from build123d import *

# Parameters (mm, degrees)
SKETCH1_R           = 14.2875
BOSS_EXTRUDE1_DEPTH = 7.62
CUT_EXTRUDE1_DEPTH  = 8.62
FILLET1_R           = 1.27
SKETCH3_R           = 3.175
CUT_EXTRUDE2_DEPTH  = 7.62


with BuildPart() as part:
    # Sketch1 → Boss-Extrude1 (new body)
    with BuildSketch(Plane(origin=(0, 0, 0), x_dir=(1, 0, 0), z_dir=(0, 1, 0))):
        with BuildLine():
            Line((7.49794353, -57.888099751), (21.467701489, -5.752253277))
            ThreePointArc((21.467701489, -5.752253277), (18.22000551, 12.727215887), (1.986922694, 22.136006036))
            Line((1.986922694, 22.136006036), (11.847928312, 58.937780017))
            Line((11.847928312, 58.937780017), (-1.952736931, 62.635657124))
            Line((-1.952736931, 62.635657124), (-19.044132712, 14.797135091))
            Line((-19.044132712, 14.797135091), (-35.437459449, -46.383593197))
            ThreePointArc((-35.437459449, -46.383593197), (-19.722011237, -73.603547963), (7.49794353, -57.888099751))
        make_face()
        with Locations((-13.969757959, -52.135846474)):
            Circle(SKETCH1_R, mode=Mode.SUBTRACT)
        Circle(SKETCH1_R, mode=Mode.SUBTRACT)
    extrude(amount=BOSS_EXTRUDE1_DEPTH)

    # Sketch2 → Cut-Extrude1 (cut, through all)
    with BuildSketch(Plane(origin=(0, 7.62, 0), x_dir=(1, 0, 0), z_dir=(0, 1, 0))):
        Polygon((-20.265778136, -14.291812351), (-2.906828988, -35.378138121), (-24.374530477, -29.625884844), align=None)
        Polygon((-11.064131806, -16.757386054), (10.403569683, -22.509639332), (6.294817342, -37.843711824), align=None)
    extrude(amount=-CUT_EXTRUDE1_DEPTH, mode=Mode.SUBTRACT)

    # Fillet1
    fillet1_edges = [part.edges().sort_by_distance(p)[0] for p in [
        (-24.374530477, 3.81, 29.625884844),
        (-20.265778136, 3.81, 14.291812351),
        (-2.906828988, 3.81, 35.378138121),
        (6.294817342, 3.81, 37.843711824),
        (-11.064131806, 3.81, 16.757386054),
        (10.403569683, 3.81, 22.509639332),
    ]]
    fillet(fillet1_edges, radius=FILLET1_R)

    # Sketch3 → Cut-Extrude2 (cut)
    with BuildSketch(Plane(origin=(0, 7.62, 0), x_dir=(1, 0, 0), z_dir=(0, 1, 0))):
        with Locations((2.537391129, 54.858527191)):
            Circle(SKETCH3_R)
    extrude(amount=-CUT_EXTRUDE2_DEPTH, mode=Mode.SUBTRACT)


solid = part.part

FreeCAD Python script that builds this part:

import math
import FreeCAD as App
import Part
import Sketcher
from FreeCAD import Vector
Q = App.Units.Quantity


def edges_at(feature, points):
    """Names of the edges that pass closest to the given points."""
    edges = feature.Shape.Edges
    near = lambda p: min(range(len(edges)), key=lambda i: edges[i].distToShape(Part.Vertex(*p))[0])
    return sorted({f"Edge{near(p) + 1}" for p in points})


def add_polygon(sketch, points):
    """Adds a closed chain of lines whose ends are joined by coincident constraints."""
    first, n = sketch.GeometryCount, len(points)
    for a, b in zip(points, points[1:] + points[:1]):
        sketch.addGeometry(Part.LineSegment(App.Vector(*a, 0), App.Vector(*b, 0)), False)
    for i in range(n):
        sketch.addConstraint(Sketcher.Constraint("Coincident", first + i, 2, first + (i + 1) % n, 1))

doc = App.newDocument("Part")
params = doc.addObject("Spreadsheet::Sheet", "Params")
for row, (alias, value) in enumerate([
    ("sketch1_length", "2 in"),
    ("sketch1_diameter", "1.125 in"),
    ("sketch1_radius", "0.875 in"),
    ("sketch1_length2", "1.5 in"),
    ("sketch1_length3", "2.125 in"),
    ("pad1_length", "0.3 in"),
    ("sketch2_length", "0.625 in"),
    ("sketch2_length2", "0.875 in"),
    ("fillet_radius", "0.05 in"),
    ("sketch3_diameter", "0.25 in"),
    ("pocket2_length", "0.3 in"),
], start=1):
    params.set(f"A{row}", alias)
    params.set(f"B{row}", "=" + value)
    params.setAlias(f"B{row}", alias)

body = doc.addObject("PartDesign::Body", "Body")

# Sketch on XZ plane
sketch1 = body.newObject("Sketcher::SketchObject", "Sketch")
sketch1.AttachmentSupport = (doc.getObject("XZ_Plane"), [""])
sketch1.MapMode = "FlatFace"
sketch1.addGeometry(Part.LineSegment(Vector(7, 58, 0), Vector(21, 6, 0)), False)
sketch1.addGeometry(Part.ArcOfCircle(Part.Circle(Vector(0, 0, 0), Vector(0, 0, 1), 22), math.radians(-85), math.radians(15)), False)
sketch1.addGeometry(Part.LineSegment(Vector(2, -22, 0), Vector(12, -59, 0)), False)
sketch1.addGeometry(Part.LineSegment(Vector(12, -59, 0), Vector(-2, -63, 0)), False)
sketch1.addGeometry(Part.LineSegment(Vector(-2, -63, 0), Vector(-19, -15, 0)), False)
sketch1.addGeometry(Part.LineSegment(Vector(-19, -15, 0), Vector(-35, 46, 0)), False)
sketch1.addGeometry(Part.ArcOfCircle(Part.Circle(Vector(-14, 52, 0), Vector(0, 0, 1), 22), math.radians(15), math.radians(195)), False)
sketch1.addGeometry(Part.Circle(Vector(-14, 52, 0), Vector(0, 0, 1), 14), False)
sketch1.addGeometry(Part.Circle(Vector(0, 0, 0), Vector(0, 0, 1), 14), False)
sketch1.addConstraint(Sketcher.Constraint("Tangent", 0, 2, 1, 2))
sketch1.addConstraint(Sketcher.Constraint("Coincident", 1, 1, 2, 1))
sketch1.addConstraint(Sketcher.Constraint("Coincident", 2, 2, 3, 1))
sketch1.addConstraint(Sketcher.Constraint("Coincident", 3, 2, 4, 1))
sketch1.addConstraint(Sketcher.Constraint("Coincident", 4, 2, 5, 1))
sketch1.addConstraint(Sketcher.Constraint("Tangent", 5, 2, 6, 2))
sketch1.addConstraint(Sketcher.Constraint("Tangent", 6, 1, 0, 1))
sketch1.addConstraint(Sketcher.Constraint("Coincident", 1, 3, -1, 1))
sketch1.addConstraint(Sketcher.Constraint("Coincident", 8, 3, -1, 1))
sketch1.addConstraint(Sketcher.Constraint("Coincident", 7, 3, 6, 3))
sketch1.addConstraint(Sketcher.Constraint("Equal", 1, 6))
sketch1.addConstraint(Sketcher.Constraint("Equal", 7, 8))
sketch1.addConstraint(Sketcher.Constraint("Parallel", 0, 2))
sketch1.addConstraint(Sketcher.Constraint("Perpendicular", 2, 3))
sketch1.addConstraint(Sketcher.Constraint("Perpendicular", 3, 5))
sketch1.addConstraint(Sketcher.Constraint("Distance", 4, Q("2 in")))
sketch1.addConstraint(Sketcher.Constraint("Diameter", 7, Q("1.125 in")))
sketch1.addConstraint(Sketcher.Constraint("Angle", 0, Q("-75 deg")))
sketch1.addConstraint(Sketcher.Constraint("Radius", 1, Q("0.875 in")))
sketch1.addConstraint(Sketcher.Constraint("Distance", 2, Q("1.5 in")))
sketch1.addConstraint(Sketcher.Constraint("Distance", 0, Q("2.125 in")))
sketch1.addConstraint(Sketcher.Constraint("Distance", 3, Q("0.5625 in")))
sketch1.addConstraint(Sketcher.Constraint("Distance", 5, 63.338951))
sketch1.setExpression("Constraints[15]", "Params.sketch1_length")
sketch1.setExpression("Constraints[16]", "Params.sketch1_diameter")
sketch1.setExpression("Constraints[18]", "Params.sketch1_radius")
sketch1.setExpression("Constraints[19]", "Params.sketch1_length2")
sketch1.setExpression("Constraints[20]", "Params.sketch1_length3")
pad1 = body.newObject("PartDesign::Pad", "Pad")
pad1.Profile = sketch1
pad1.setExpression("Length", "Params.pad1_length")
pad1.Reversed = True

# Sketch on XZ plane
sketch2 = body.newObject("Sketcher::SketchObject", "Sketch001")
sketch2.AttachmentSupport = (doc.getObject("XZ_Plane"), [""])
sketch2.MapMode = "FlatFace"
sketch2.AttachmentOffset = App.Placement(Vector(0, 0, -0.3 * 25.4), App.Rotation())
add_polygon(sketch2, [(-3, 35), (-20, 14), (-24, 30)])  # lines 0-2
add_polygon(sketch2, [(10, 23), (-11, 17), (6, 38)])  # lines 3-5
sketch2.addConstraint(Sketcher.Constraint("Perpendicular", 1, 2))
sketch2.addConstraint(Sketcher.Constraint("Parallel", 2, 3))
sketch2.addConstraint(Sketcher.Constraint("Parallel", 0, 4))
sketch2.addConstraint(Sketcher.Constraint("Perpendicular", 3, 5))
sketch2.addConstraint(Sketcher.Constraint("Equal", 2, 3))
sketch2.addConstraint(Sketcher.Constraint("Angle", 1, Q("105 deg")))
sketch2.addConstraint(Sketcher.Constraint("Distance", 1, Q("0.625 in")))
sketch2.addConstraint(Sketcher.Constraint("Distance", 2, Q("0.875 in")))
sketch2.addConstraint(Sketcher.Constraint("DistanceX", 1, 2, 3, 2, 13.310399))
sketch2.addConstraint(Sketcher.Constraint("DistanceY", 3, 2, 1, 2, 12.868499))
sketch2.addConstraint(Sketcher.Constraint("DistanceX", 0, 2, -1, 1, 20.265778))
sketch2.addConstraint(Sketcher.Constraint("DistanceY", -1, 1, 2, 2, 35.378138))
sketch2.setExpression("Constraints[12]", "Params.sketch2_length")
sketch2.setExpression("Constraints[13]", "Params.sketch2_length2")
pocket1 = body.newObject("PartDesign::Pocket", "Pocket")
pocket1.Profile = sketch2
pocket1.Type = "ThroughAll"
pocket1.Reversed = True
doc.recompute()

fillet = body.newObject("PartDesign::Fillet", "Fillet")
fillet.Base = (pocket1, edges_at(pocket1, [
    (-24.375, 3.81, 29.626),
    (-20.266, 3.81, 14.292),
    (-2.907, 3.81, 35.378),
    (6.295, 3.81, 37.844),
    (-11.064, 3.81, 16.757),
    (10.404, 3.81, 22.51),
]))
fillet.setExpression("Radius", "Params.fillet_radius")

# Sketch on XZ plane
sketch3 = body.newObject("Sketcher::SketchObject", "Sketch002")
sketch3.AttachmentSupport = (doc.getObject("XZ_Plane"), [""])
sketch3.MapMode = "FlatFace"
sketch3.AttachmentOffset = App.Placement(Vector(0, 0, -0.3 * 25.4), App.Rotation())
sketch3.addGeometry(Part.Circle(Vector(2.5, -54.9, 0), Vector(0, 0, 1), 3.2), False)
sketch3.addConstraint(Sketcher.Constraint("Diameter", 0, Q("0.25 in")))
sketch3.addConstraint(Sketcher.Constraint("DistanceX", -1, 1, 0, 3, 2.537391))
sketch3.addConstraint(Sketcher.Constraint("DistanceY", 0, 3, -1, 1, 54.858527))
sketch3.setExpression("Constraints[0]", "Params.sketch3_diameter")
pocket2 = body.newObject("PartDesign::Pocket", "Pocket001")
pocket2.Profile = sketch3
pocket2.setExpression("Length", "Params.pocket2_length")
pocket2.Reversed = True

doc.recompute()
